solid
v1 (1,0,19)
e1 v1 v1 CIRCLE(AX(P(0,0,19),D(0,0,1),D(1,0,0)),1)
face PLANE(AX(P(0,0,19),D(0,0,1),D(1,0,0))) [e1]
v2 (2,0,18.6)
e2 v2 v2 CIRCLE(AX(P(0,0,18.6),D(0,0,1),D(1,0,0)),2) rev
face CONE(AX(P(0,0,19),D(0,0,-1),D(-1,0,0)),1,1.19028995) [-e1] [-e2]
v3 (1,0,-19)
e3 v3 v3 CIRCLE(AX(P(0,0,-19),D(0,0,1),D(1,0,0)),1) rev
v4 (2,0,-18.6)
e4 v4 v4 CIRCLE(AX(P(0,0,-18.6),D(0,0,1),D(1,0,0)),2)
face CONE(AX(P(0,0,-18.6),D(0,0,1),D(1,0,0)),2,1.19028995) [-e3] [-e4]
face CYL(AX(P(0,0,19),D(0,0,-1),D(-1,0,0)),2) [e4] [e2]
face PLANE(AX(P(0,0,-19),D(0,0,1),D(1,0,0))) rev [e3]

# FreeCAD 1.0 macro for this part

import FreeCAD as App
import Part
import Sketcher

V = App.Vector
Q = App.Units.Quantity


def edges_at(feature, points):
    """Names of the edges that pass closest to the given points."""
    edges = feature.Shape.Edges
    near = lambda p: min(range(len(edges)), key=lambda i: edges[i].distToShape(Part.Vertex(*p))[0])
    return sorted({f"Edge{near(p) + 1}" for p in points})

doc = App.newDocument("Part")
body = doc.addObject("PartDesign::Body", "Body")

# Sketch on XY plane
sketch1 = doc.addObject("Sketcher::SketchObject", "Sketch")
body.addObject(sketch1)
sketch1.AttachmentSupport = (doc.XY_Plane, [""])
sketch1.MapMode = "FlatFace"
sketch1.addGeometry(Part.Circle(V(0, 0, 0), V(0, 0, 1), 2), False)
sketch1.addConstraint(Sketcher.Constraint("Coincident", 0, 3, -1, 1))
sketch1.addConstraint(Sketcher.Constraint("Diameter", 0, Q("4 mm")))
pad1 = doc.addObject("PartDesign::Pad", "Pad")
body.addObject(pad1)
pad1.Profile = sketch1
pad1.Length = 38
pad1.Midplane = True
doc.recompute()

chamfer = doc.addObject("PartDesign::Chamfer", "Chamfer")
body.addObject(chamfer)
chamfer.Base = (pad1, edges_at(pad1, [(-2, 0, 19)]))
chamfer.ChamferType = "Two distances"
chamfer.Size = 0.4
chamfer.Size2 = 1
doc.recompute()

chamfer2 = doc.addObject("PartDesign::Chamfer", "Chamfer001")
body.addObject(chamfer2)
chamfer2.Base = (chamfer, edges_at(chamfer, [(-2, 0, -19)]))
chamfer2.ChamferType = "Two distances"
chamfer2.Size = 1
chamfer2.Size2 = 0.4
chamfer2.FlipDirection = True

doc.recompute()
